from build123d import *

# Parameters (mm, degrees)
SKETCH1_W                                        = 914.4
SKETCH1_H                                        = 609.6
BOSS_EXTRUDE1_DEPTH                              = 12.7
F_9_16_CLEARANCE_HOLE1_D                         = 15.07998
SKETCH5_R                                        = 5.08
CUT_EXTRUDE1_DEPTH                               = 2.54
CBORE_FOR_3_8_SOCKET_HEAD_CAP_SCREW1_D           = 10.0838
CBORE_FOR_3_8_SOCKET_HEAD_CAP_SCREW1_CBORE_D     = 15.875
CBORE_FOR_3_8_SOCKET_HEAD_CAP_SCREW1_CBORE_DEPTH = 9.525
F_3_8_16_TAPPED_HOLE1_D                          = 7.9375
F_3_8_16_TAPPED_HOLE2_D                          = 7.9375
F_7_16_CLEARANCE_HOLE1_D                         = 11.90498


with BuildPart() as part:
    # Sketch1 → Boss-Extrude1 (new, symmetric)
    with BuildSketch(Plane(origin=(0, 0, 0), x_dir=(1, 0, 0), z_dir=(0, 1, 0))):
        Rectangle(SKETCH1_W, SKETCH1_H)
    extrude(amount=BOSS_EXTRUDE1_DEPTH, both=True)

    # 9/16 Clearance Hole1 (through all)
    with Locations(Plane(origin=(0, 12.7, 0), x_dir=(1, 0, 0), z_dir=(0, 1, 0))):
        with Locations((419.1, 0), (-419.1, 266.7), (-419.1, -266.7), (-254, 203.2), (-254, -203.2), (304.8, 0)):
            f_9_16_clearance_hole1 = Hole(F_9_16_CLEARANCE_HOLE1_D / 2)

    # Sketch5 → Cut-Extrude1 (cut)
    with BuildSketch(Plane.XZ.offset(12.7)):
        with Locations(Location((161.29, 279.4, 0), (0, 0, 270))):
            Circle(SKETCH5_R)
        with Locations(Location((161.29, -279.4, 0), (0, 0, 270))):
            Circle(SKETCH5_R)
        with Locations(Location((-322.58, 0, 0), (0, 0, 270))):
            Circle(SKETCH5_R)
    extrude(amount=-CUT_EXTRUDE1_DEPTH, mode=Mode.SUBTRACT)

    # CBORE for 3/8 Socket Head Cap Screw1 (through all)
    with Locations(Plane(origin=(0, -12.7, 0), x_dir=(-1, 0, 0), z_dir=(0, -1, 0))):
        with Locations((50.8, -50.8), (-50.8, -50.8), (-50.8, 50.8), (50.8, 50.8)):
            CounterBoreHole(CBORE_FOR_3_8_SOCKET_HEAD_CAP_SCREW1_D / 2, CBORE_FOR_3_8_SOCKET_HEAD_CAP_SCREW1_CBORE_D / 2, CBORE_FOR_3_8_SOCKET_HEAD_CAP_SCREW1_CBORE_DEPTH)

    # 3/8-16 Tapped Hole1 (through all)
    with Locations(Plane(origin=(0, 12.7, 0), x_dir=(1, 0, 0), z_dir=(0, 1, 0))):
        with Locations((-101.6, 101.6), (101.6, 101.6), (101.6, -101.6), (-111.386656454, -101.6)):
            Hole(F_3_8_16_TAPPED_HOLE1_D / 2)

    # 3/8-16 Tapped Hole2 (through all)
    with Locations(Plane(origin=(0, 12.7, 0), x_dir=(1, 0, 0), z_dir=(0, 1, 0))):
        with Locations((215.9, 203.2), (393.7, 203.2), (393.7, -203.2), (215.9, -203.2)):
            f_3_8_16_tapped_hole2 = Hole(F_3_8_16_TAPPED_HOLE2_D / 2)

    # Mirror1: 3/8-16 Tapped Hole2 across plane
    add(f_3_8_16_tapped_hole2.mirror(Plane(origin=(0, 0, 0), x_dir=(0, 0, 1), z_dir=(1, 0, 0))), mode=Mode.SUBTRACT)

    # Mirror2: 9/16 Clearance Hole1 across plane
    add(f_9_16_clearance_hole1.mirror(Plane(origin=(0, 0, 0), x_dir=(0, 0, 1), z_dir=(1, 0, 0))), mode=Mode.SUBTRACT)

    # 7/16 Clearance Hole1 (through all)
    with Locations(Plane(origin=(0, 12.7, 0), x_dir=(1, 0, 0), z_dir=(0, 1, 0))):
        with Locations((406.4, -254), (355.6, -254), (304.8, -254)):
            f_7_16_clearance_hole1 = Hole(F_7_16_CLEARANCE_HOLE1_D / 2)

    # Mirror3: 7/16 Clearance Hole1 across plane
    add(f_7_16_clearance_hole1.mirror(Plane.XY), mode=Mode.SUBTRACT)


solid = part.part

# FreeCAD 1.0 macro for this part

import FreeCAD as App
import Part
import Sketcher
Q = App.Units.Quantity


def add_polygon(sketch, points):
    """Adds a closed chain of lines whose ends are joined by coincident constraints."""
    first, n = sketch.GeometryCount, len(points)
    for a, b in zip(points, points[1:] + points[:1]):
        sketch.addGeometry(Part.LineSegment(App.Vector(*a, 0), App.Vector(*b, 0)), False)
    for i in range(n):
        sketch.addConstraint(Sketcher.Constraint("Coincident", first + i, 2, first + (i + 1) % n, 1))

doc = App.newDocument("Part")
body = doc.addObject("PartDesign::Body", "Body")

# Sketch on XZ plane
sketch1 = body.newObject("Sketcher::SketchObject", "Sketch")
sketch1.AttachmentSupport = (doc.getObject("XZ_Plane"), [""])
sketch1.MapMode = "FlatFace"
add_polygon(sketch1, [(-457.2, -304.8), (-457.2, 304.8), (457.2, 304.8), (457.2, -304.8)])  # lines 0-3
sketch1.addConstraint(Sketcher.Constraint("Vertical", 0))
sketch1.addConstraint(Sketcher.Constraint("Horizontal", 1))
sketch1.addConstraint(Sketcher.Constraint("Vertical", 2))
sketch1.addConstraint(Sketcher.Constraint("Horizontal", 3))
sketch1.addConstraint(Sketcher.Constraint("Symmetric", 0, 2, 2, 2, -1, 1))
sketch1.addConstraint(Sketcher.Constraint("DistanceX", 1, 1, 1, 2, Q("36 in")))
sketch1.addConstraint(Sketcher.Constraint("DistanceY", 0, 1, 0, 2, Q("24 in")))
pad1 = body.newObject("PartDesign::Pad", "Pad")
pad1.Profile = sketch1
pad1.Length = Q("1 in")
pad1.Midplane = True

# Sketch on XZ plane
sketch2 = body.newObject("Sketcher::SketchObject", "Sketch001")
sketch2.AttachmentSupport = (doc.getObject("XZ_Plane"), [""])
sketch2.MapMode = "FlatFace"
sketch2.AttachmentOffset = App.Placement(App.Vector(0, 0, -0.5 * 25.4), App.Rotation())
sketch2.addGeometry(Part.Circle(App.Vector(419.1, 0, 0), App.Vector(0, 0, 1), 7.53999), False)
sketch2.addGeometry(Part.Circle(App.Vector(-419.1, -266.7, 0), App.Vector(0, 0, 1), 7.53999), False)
sketch2.addGeometry(Part.Circle(App.Vector(-419.1, 266.7, 0), App.Vector(0, 0, 1), 7.53999), False)
sketch2.addGeometry(Part.Circle(App.Vector(-254, -203.2, 0), App.Vector(0, 0, 1), 7.53999), False)
sketch2.addGeometry(Part.Circle(App.Vector(-254, 203.2, 0), App.Vector(0, 0, 1), 7.53999), False)
sketch2.addGeometry(Part.Circle(App.Vector(304.8, 0, 0), App.Vector(0, 0, 1), 7.53999), False)
sketch2.addConstraint(Sketcher.Constraint("Equal", 0, 1))
sketch2.addConstraint(Sketcher.Constraint("Equal", 1, 2))
sketch2.addConstraint(Sketcher.Constraint("Equal", 2, 3))
sketch2.addConstraint(Sketcher.Constraint("Equal", 3, 4))
sketch2.addConstraint(Sketcher.Constraint("Equal", 4, 5))
sketch2.addConstraint(Sketcher.Constraint("Symmetric", 1, 3, 2, 3, -1))
sketch2.addConstraint(Sketcher.Constraint("Symmetric", 3, 3, 4, 3, -1))
sketch2.addConstraint(Sketcher.Constraint("PointOnObject", 0, 3, -1))
sketch2.addConstraint(Sketcher.Constraint("PointOnObject", 5, 3, -1))
sketch2.addConstraint(Sketcher.Constraint("DistanceX", 3, 3, -1, 1, Q("10 in")))
sketch2.addConstraint(Sketcher.Constraint("DistanceY", 3, 3, -1, 1, Q("8 in")))
sketch2.addConstraint(Sketcher.Constraint("DistanceX", -1, 1, 5, 3, Q("12 in")))
sketch2.addConstraint(Sketcher.Constraint("DistanceX", 1, 3, 0, 3, Q("33 in")))
sketch2.addConstraint(Sketcher.Constraint("DistanceY", 1, 3, 2, 3, Q("21 in")))
sketch2.addConstraint(Sketcher.Constraint("Diameter", 0, Q("0.5937 in")))
sketch2.addConstraint(Sketcher.Constraint("DistanceX", -1, 1, 0, 3, Q("16.5 in")))
doc.recompute()
hole = body.newObject("PartDesign::Hole", "Hole")
hole.Profile = sketch2
hole.ThreadType = "None"
hole.Diameter = Q("0.5937 in")
hole.DepthType = "ThroughAll"
hole.Reversed = True

# Sketch on XZ plane
sketch3 = body.newObject("Sketcher::SketchObject", "Sketch002")
sketch3.AttachmentSupport = (doc.getObject("XZ_Plane"), [""])
sketch3.MapMode = "FlatFace"
sketch3.AttachmentOffset = App.Placement(App.Vector(0, 0, 0.5 * 25.4), App.Rotation())
sketch3.addGeometry(Part.Circle(App.Vector(161.29, 279.4, 0), App.Vector(0, 0, 1), 5.08), False)
sketch3.addGeometry(Part.Circle(App.Vector(161.29, -279.4, 0), App.Vector(0, 0, 1), 5.08), False)
sketch3.addGeometry(Part.Circle(App.Vector(-322.58, 0, 0), App.Vector(0, 0, 1), 5.08), False)
sketch3.addConstraint(Sketcher.Constraint("Equal", 0, 1))
sketch3.addConstraint(Sketcher.Constraint("Equal", 1, 2))
sketch3.addConstraint(Sketcher.Constraint("Symmetric", 0, 3, 1, 3, -1))
sketch3.addConstraint(Sketcher.Constraint("PointOnObject", 2, 3, -1))
sketch3.addConstraint(Sketcher.Constraint("Diameter", 0, Q("0.4 in")))
sketch3.addConstraint(Sketcher.Constraint("DistanceY", -1, 1, 0, 3, Q("11 in")))
sketch3.addConstraint(Sketcher.Constraint("DistanceX", 2, 3, -1, 1, Q("12.7 in")))
sketch3.addConstraint(Sketcher.Constraint("DistanceX", -1, 1, 0, 3, Q("6.35 in")))
pocket1 = body.newObject("PartDesign::Pocket", "Pocket")
pocket1.Profile = sketch3
pocket1.Length = Q("0.1 in")

# Sketch on XZ plane
sketch4 = body.newObject("Sketcher::SketchObject", "Sketch003")
sketch4.AttachmentSupport = (doc.getObject("XZ_Plane"), [""])
sketch4.MapMode = "FlatFace"
sketch4.AttachmentOffset = App.Placement(App.Vector(0, 0, 0.5 * 25.4), App.Rotation())
sketch4.addGeometry(Part.Circle(App.Vector(-50.8, 50.8, 0), App.Vector(0, 0, 1), 5.0419), False)
sketch4.addGeometry(Part.Circle(App.Vector(50.8, 50.8, 0), App.Vector(0, 0, 1), 5.0419), False)
sketch4.addGeometry(Part.Circle(App.Vector(50.8, -50.8, 0), App.Vector(0, 0, 1), 5.0419), False)
sketch4.addGeometry(Part.Circle(App.Vector(-50.8, -50.8, 0), App.Vector(0, 0, 1), 5.0419), False)
sketch4.addConstraint(Sketcher.Constraint("Equal", 0, 1))
sketch4.addConstraint(Sketcher.Constraint("Equal", 1, 2))
sketch4.addConstraint(Sketcher.Constraint("Equal", 2, 3))
sketch4.addConstraint(Sketcher.Constraint("Symmetric", 0, 3, 2, 3, -1, 1))
sketch4.addConstraint(Sketcher.Constraint("Symmetric", 1, 3, 3, 3, -1, 1))
sketch4.addConstraint(Sketcher.Constraint("Symmetric", 0, 3, 1, 3, -2))
sketch4.addConstraint(Sketcher.Constraint("Diameter", 0, Q("0.397 in")))
sketch4.addConstraint(Sketcher.Constraint("DistanceX", 0, 3, -1, 1, Q("2 in")))
sketch4.addConstraint(Sketcher.Constraint("DistanceY", -1, 1, 0, 3, Q("2 in")))
doc.recompute()
hole2 = body.newObject("PartDesign::Hole", "Hole001")
hole2.Profile = sketch4
hole2.ThreadType = "None"
hole2.Diameter = Q("0.397 in")
hole2.DepthType = "ThroughAll"
hole2.HoleCutType = "Counterbore"
hole2.HoleCutDiameter = Q("0.625 in")
hole2.HoleCutDepth = Q("0.375 in")

# Sketch on XZ plane
sketch5 = body.newObject("Sketcher::SketchObject", "Sketch004")
sketch5.AttachmentSupport = (doc.getObject("XZ_Plane"), [""])
sketch5.MapMode = "FlatFace"
sketch5.AttachmentOffset = App.Placement(App.Vector(0, 0, -0.5 * 25.4), App.Rotation())
sketch5.addGeometry(Part.Circle(App.Vector(-101.6, -101.6, 0), App.Vector(0, 0, 1), 3.96875), False)
sketch5.addGeometry(Part.Circle(App.Vector(101.6, -101.6, 0), App.Vector(0, 0, 1), 3.96875), False)
sketch5.addGeometry(Part.Circle(App.Vector(101.6, 101.6, 0), App.Vector(0, 0, 1), 3.96875), False)
sketch5.addGeometry(Part.Circle(App.Vector(-111.386656, 101.6, 0), App.Vector(0, 0, 1), 3.96875), False)
sketch5.addConstraint(Sketcher.Constraint("Equal", 0, 1))
sketch5.addConstraint(Sketcher.Constraint("Equal", 1, 2))
sketch5.addConstraint(Sketcher.Constraint("Equal", 2, 3))
sketch5.addConstraint(Sketcher.Constraint("Symmetric", 0, 3, 2, 3, -1, 1))
sketch5.addConstraint(Sketcher.Constraint("Symmetric", 0, 3, 1, 3, -2))
sketch5.addConstraint(Sketcher.Constraint("Horizontal", 2, 3, 3, 3))
sketch5.addConstraint(Sketcher.Constraint("Diameter", 0, Q("0.3125 in")))
sketch5.addConstraint(Sketcher.Constraint("DistanceX", 0, 3, -1, 1, Q("4 in")))
sketch5.addConstraint(Sketcher.Constraint("DistanceY", 0, 3, -1, 1, Q("4 in")))
sketch5.addConstraint(Sketcher.Constraint("DistanceX", 3, 3, -1, 1, Q("111.386656 mm")))
doc.recompute()
hole3 = body.newObject("PartDesign::Hole", "Hole002")
hole3.Profile = sketch5
hole3.ThreadType = "None"
hole3.Diameter = Q("0.3125 in")
hole3.DepthType = "ThroughAll"
hole3.Reversed = True

# Sketch on XZ plane
sketch6 = body.newObject("Sketcher::SketchObject", "Sketch005")
sketch6.AttachmentSupport = (doc.getObject("XZ_Plane"), [""])
sketch6.MapMode = "FlatFace"
sketch6.AttachmentOffset = App.Placement(App.Vector(0, 0, -0.5 * 25.4), App.Rotation())
sketch6.addGeometry(Part.Circle(App.Vector(215.9, -203.2, 0), App.Vector(0, 0, 1), 3.96875), False)
sketch6.addGeometry(Part.Circle(App.Vector(393.7, -203.2, 0), App.Vector(0, 0, 1), 3.96875), False)
sketch6.addGeometry(Part.Circle(App.Vector(393.7, 203.2, 0), App.Vector(0, 0, 1), 3.96875), False)
sketch6.addGeometry(Part.Circle(App.Vector(215.9, 203.2, 0), App.Vector(0, 0, 1), 3.96875), False)
sketch6.addConstraint(Sketcher.Constraint("Equal", 0, 1))
sketch6.addConstraint(Sketcher.Constraint("Equal", 1, 2))
sketch6.addConstraint(Sketcher.Constraint("Equal", 2, 3))
sketch6.addConstraint(Sketcher.Constraint("Symmetric", 1, 3, 2, 3, -1))
sketch6.addConstraint(Sketcher.Constraint("Symmetric", 0, 3, 3, 3, -1))
sketch6.addConstraint(Sketcher.Constraint("Horizontal", 0, 3, 1, 3))
sketch6.addConstraint(Sketcher.Constraint("Diameter", 0, Q("0.3125 in")))
sketch6.addConstraint(Sketcher.Constraint("DistanceY", 0, 3, -1, 1, Q("8 in")))
sketch6.addConstraint(Sketcher.Constraint("DistanceX", 0, 3, 1, 3, Q("7 in")))
sketch6.addConstraint(Sketcher.Constraint("DistanceX", -1, 1, 0, 3, Q("8.5 in")))
doc.recompute()
hole4 = body.newObject("PartDesign::Hole", "Hole003")
hole4.Profile = sketch6
hole4.ThreadType = "None"
hole4.Diameter = Q("0.3125 in")
hole4.DepthType = "ThroughAll"
hole4.Reversed = True
doc.recompute()

mirrored = body.newObject("PartDesign::Mirrored", "Mirrored")
mirrored.Originals = [hole4]
mirrored.MirrorPlane = (doc.getObject("YZ_Plane"), [""])
body.Tip = mirrored
doc.recompute()

mirrored2 = body.newObject("PartDesign::Mirrored", "Mirrored001")
mirrored2.Originals = [hole]
mirrored2.MirrorPlane = (doc.getObject("YZ_Plane"), [""])
body.Tip = mirrored2

# Sketch on XZ plane
sketch7 = body.newObject("Sketcher::SketchObject", "Sketch006")
sketch7.AttachmentSupport = (doc.getObject("XZ_Plane"), [""])
sketch7.MapMode = "FlatFace"
sketch7.AttachmentOffset = App.Placement(App.Vector(0, 0, -0.5 * 25.4), App.Rotation())
sketch7.addGeometry(Part.Circle(App.Vector(406.4, 254, 0), App.Vector(0, 0, 1), 5.95249), False)
sketch7.addGeometry(Part.Circle(App.Vector(355.6, 254, 0), App.Vector(0, 0, 1), 5.95249), False)
sketch7.addGeometry(Part.Circle(App.Vector(304.8, 254, 0), App.Vector(0, 0, 1), 5.95249), False)
sketch7.addConstraint(Sketcher.Constraint("Equal", 0, 1))
sketch7.addConstraint(Sketcher.Constraint("Equal", 1, 2))
sketch7.addConstraint(Sketcher.Constraint("Horizontal", 0, 3, 1, 3))
sketch7.addConstraint(Sketcher.Constraint("Horizontal", 1, 3, 2, 3))
sketch7.addConstraint(Sketcher.Constraint("DistanceX", -1, 1, 0, 3, Q("16 in")))
sketch7.addConstraint(Sketcher.Constraint("DistanceY", -1, 1, 0, 3, Q("10 in")))
sketch7.addConstraint(Sketcher.Constraint("DistanceX", -1, 1, 1, 3, Q("14 in")))
sketch7.addConstraint(Sketcher.Constraint("DistanceX", -1, 1, 2, 3, Q("12 in")))
sketch7.addConstraint(Sketcher.Constraint("Diameter", 0, Q("0.4687 in")))
doc.recompute()
hole5 = body.newObject("PartDesign::Hole", "Hole004")
hole5.Profile = sketch7
hole5.ThreadType = "None"
hole5.Diameter = Q("0.4687 in")
hole5.DepthType = "ThroughAll"
hole5.Reversed = True
doc.recompute()

mirrored3 = body.newObject("PartDesign::Mirrored", "Mirrored002")
mirrored3.Originals = [hole5]
mirrored3.MirrorPlane = (doc.getObject("XY_Plane"), [""])
body.Tip = mirrored3

doc.recompute()
